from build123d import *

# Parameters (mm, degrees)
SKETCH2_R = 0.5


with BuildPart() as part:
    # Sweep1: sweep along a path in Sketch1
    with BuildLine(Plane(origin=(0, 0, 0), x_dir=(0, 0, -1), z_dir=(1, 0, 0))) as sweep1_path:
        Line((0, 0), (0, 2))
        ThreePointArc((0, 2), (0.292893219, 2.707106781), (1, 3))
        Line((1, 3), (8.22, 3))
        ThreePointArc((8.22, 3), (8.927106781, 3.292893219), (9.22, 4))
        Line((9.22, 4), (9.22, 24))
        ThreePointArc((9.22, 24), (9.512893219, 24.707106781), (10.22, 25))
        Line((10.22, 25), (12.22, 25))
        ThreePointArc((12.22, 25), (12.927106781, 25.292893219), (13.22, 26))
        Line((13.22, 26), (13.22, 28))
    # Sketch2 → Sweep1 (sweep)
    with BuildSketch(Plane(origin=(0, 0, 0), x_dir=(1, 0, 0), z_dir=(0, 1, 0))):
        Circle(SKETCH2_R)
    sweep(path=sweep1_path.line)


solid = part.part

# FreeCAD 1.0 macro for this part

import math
import FreeCAD as App
import Part
import Sketcher
Q = App.Units.Quantity

doc = App.newDocument("Part")
body = doc.addObject("PartDesign::Body", "Body")

sketch1 = body.newObject("Sketcher::SketchObject", "Sketch")
sketch1.AttachmentSupport = (doc.getObject("XZ_Plane"), [""])
sketch1.MapMode = "FlatFace"
sketch1.addGeometry(Part.Circle(App.Vector(0, 0, 0), App.Vector(0, 0, 1), 0.5), False)
sketch1.addConstraint([
    Sketcher.Constraint("Coincident", 0, 3, -1, 1),
    Sketcher.Constraint("Diameter", 0, Q("1 mm")),
])

sketch2 = body.newObject("Sketcher::SketchObject", "Sketch001")
sketch2.AttachmentSupport = (doc.getObject("YZ_Plane"), [""])
sketch2.MapMode = "FlatFace"
sketch2.addGeometry([
    Part.LineSegment(App.Vector(0, 0, 0), App.Vector(2, 0, 0)),
    Part.ArcOfCircle(Part.Circle(App.Vector(2, -1, 0), App.Vector(0, 0, 1), 1), math.radians(0), math.radians(90)),
    Part.LineSegment(App.Vector(3, -1, 0), App.Vector(3, -8.22, 0)),
    Part.ArcOfCircle(Part.Circle(App.Vector(4, -8.22, 0), App.Vector(0, 0, 1), 1), math.radians(-180), math.radians(-90)),
    Part.LineSegment(App.Vector(4, -9.22, 0), App.Vector(24, -9.22, 0)),
    Part.ArcOfCircle(Part.Circle(App.Vector(24, -10.22, 0), App.Vector(0, 0, 1), 1), math.radians(0), math.radians(90)),
    Part.LineSegment(App.Vector(25, -10.22, 0), App.Vector(25, -12.22, 0)),
    Part.ArcOfCircle(Part.Circle(App.Vector(26, -12.22, 0), App.Vector(0, 0, 1), 1), math.radians(-180), math.radians(-90)),
    Part.LineSegment(App.Vector(26, -13.22, 0), App.Vector(28, -13.22, 0)),
], False)
sketch2.addConstraint([
    Sketcher.Constraint("Tangent", 0, 2, 1, 2),
    Sketcher.Constraint("Tangent", 1, 1, 2, 1),
    Sketcher.Constraint("Tangent", 2, 2, 3, 1),
    Sketcher.Constraint("Tangent", 3, 2, 4, 1),
    Sketcher.Constraint("Tangent", 4, 2, 5, 2),
    Sketcher.Constraint("Tangent", 5, 1, 6, 1),
    Sketcher.Constraint("Tangent", 6, 2, 7, 1),
    Sketcher.Constraint("Tangent", 7, 2, 8, 1),
    Sketcher.Constraint("Horizontal", 0),
    Sketcher.Constraint("Vertical", 2),
    Sketcher.Constraint("Horizontal", 4),
    Sketcher.Constraint("Vertical", 6),
    Sketcher.Constraint("Horizontal", 8),
    Sketcher.Constraint("Coincident", 0, 1, -1, 1),
    Sketcher.Constraint("Equal", 1, 3),
    Sketcher.Constraint("Equal", 3, 5),
    Sketcher.Constraint("Equal", 5, 7),
    Sketcher.Constraint("Equal", 0, 8),
    Sketcher.Constraint("Equal", 8, 6),
    Sketcher.Constraint("Radius", 1, Q("1 mm")),
    Sketcher.Constraint("DistanceX", 0, 1, 0, 2, Q("2 mm")),
    Sketcher.Constraint("DistanceX", 4, 1, 4, 2, Q("20 mm")),
    Sketcher.Constraint("DistanceY", 2, 2, 2, 1, Q("7.22 mm")),
])
doc.recompute()

additivepipe = body.newObject("PartDesign::AdditivePipe", "AdditivePipe")
additivepipe.Profile = sketch1
additivepipe.Spine = (sketch2, ["Edge1", "Edge2", "Edge3", "Edge4", "Edge5", "Edge6", "Edge7", "Edge8", "Edge9"])

doc.recompute()
